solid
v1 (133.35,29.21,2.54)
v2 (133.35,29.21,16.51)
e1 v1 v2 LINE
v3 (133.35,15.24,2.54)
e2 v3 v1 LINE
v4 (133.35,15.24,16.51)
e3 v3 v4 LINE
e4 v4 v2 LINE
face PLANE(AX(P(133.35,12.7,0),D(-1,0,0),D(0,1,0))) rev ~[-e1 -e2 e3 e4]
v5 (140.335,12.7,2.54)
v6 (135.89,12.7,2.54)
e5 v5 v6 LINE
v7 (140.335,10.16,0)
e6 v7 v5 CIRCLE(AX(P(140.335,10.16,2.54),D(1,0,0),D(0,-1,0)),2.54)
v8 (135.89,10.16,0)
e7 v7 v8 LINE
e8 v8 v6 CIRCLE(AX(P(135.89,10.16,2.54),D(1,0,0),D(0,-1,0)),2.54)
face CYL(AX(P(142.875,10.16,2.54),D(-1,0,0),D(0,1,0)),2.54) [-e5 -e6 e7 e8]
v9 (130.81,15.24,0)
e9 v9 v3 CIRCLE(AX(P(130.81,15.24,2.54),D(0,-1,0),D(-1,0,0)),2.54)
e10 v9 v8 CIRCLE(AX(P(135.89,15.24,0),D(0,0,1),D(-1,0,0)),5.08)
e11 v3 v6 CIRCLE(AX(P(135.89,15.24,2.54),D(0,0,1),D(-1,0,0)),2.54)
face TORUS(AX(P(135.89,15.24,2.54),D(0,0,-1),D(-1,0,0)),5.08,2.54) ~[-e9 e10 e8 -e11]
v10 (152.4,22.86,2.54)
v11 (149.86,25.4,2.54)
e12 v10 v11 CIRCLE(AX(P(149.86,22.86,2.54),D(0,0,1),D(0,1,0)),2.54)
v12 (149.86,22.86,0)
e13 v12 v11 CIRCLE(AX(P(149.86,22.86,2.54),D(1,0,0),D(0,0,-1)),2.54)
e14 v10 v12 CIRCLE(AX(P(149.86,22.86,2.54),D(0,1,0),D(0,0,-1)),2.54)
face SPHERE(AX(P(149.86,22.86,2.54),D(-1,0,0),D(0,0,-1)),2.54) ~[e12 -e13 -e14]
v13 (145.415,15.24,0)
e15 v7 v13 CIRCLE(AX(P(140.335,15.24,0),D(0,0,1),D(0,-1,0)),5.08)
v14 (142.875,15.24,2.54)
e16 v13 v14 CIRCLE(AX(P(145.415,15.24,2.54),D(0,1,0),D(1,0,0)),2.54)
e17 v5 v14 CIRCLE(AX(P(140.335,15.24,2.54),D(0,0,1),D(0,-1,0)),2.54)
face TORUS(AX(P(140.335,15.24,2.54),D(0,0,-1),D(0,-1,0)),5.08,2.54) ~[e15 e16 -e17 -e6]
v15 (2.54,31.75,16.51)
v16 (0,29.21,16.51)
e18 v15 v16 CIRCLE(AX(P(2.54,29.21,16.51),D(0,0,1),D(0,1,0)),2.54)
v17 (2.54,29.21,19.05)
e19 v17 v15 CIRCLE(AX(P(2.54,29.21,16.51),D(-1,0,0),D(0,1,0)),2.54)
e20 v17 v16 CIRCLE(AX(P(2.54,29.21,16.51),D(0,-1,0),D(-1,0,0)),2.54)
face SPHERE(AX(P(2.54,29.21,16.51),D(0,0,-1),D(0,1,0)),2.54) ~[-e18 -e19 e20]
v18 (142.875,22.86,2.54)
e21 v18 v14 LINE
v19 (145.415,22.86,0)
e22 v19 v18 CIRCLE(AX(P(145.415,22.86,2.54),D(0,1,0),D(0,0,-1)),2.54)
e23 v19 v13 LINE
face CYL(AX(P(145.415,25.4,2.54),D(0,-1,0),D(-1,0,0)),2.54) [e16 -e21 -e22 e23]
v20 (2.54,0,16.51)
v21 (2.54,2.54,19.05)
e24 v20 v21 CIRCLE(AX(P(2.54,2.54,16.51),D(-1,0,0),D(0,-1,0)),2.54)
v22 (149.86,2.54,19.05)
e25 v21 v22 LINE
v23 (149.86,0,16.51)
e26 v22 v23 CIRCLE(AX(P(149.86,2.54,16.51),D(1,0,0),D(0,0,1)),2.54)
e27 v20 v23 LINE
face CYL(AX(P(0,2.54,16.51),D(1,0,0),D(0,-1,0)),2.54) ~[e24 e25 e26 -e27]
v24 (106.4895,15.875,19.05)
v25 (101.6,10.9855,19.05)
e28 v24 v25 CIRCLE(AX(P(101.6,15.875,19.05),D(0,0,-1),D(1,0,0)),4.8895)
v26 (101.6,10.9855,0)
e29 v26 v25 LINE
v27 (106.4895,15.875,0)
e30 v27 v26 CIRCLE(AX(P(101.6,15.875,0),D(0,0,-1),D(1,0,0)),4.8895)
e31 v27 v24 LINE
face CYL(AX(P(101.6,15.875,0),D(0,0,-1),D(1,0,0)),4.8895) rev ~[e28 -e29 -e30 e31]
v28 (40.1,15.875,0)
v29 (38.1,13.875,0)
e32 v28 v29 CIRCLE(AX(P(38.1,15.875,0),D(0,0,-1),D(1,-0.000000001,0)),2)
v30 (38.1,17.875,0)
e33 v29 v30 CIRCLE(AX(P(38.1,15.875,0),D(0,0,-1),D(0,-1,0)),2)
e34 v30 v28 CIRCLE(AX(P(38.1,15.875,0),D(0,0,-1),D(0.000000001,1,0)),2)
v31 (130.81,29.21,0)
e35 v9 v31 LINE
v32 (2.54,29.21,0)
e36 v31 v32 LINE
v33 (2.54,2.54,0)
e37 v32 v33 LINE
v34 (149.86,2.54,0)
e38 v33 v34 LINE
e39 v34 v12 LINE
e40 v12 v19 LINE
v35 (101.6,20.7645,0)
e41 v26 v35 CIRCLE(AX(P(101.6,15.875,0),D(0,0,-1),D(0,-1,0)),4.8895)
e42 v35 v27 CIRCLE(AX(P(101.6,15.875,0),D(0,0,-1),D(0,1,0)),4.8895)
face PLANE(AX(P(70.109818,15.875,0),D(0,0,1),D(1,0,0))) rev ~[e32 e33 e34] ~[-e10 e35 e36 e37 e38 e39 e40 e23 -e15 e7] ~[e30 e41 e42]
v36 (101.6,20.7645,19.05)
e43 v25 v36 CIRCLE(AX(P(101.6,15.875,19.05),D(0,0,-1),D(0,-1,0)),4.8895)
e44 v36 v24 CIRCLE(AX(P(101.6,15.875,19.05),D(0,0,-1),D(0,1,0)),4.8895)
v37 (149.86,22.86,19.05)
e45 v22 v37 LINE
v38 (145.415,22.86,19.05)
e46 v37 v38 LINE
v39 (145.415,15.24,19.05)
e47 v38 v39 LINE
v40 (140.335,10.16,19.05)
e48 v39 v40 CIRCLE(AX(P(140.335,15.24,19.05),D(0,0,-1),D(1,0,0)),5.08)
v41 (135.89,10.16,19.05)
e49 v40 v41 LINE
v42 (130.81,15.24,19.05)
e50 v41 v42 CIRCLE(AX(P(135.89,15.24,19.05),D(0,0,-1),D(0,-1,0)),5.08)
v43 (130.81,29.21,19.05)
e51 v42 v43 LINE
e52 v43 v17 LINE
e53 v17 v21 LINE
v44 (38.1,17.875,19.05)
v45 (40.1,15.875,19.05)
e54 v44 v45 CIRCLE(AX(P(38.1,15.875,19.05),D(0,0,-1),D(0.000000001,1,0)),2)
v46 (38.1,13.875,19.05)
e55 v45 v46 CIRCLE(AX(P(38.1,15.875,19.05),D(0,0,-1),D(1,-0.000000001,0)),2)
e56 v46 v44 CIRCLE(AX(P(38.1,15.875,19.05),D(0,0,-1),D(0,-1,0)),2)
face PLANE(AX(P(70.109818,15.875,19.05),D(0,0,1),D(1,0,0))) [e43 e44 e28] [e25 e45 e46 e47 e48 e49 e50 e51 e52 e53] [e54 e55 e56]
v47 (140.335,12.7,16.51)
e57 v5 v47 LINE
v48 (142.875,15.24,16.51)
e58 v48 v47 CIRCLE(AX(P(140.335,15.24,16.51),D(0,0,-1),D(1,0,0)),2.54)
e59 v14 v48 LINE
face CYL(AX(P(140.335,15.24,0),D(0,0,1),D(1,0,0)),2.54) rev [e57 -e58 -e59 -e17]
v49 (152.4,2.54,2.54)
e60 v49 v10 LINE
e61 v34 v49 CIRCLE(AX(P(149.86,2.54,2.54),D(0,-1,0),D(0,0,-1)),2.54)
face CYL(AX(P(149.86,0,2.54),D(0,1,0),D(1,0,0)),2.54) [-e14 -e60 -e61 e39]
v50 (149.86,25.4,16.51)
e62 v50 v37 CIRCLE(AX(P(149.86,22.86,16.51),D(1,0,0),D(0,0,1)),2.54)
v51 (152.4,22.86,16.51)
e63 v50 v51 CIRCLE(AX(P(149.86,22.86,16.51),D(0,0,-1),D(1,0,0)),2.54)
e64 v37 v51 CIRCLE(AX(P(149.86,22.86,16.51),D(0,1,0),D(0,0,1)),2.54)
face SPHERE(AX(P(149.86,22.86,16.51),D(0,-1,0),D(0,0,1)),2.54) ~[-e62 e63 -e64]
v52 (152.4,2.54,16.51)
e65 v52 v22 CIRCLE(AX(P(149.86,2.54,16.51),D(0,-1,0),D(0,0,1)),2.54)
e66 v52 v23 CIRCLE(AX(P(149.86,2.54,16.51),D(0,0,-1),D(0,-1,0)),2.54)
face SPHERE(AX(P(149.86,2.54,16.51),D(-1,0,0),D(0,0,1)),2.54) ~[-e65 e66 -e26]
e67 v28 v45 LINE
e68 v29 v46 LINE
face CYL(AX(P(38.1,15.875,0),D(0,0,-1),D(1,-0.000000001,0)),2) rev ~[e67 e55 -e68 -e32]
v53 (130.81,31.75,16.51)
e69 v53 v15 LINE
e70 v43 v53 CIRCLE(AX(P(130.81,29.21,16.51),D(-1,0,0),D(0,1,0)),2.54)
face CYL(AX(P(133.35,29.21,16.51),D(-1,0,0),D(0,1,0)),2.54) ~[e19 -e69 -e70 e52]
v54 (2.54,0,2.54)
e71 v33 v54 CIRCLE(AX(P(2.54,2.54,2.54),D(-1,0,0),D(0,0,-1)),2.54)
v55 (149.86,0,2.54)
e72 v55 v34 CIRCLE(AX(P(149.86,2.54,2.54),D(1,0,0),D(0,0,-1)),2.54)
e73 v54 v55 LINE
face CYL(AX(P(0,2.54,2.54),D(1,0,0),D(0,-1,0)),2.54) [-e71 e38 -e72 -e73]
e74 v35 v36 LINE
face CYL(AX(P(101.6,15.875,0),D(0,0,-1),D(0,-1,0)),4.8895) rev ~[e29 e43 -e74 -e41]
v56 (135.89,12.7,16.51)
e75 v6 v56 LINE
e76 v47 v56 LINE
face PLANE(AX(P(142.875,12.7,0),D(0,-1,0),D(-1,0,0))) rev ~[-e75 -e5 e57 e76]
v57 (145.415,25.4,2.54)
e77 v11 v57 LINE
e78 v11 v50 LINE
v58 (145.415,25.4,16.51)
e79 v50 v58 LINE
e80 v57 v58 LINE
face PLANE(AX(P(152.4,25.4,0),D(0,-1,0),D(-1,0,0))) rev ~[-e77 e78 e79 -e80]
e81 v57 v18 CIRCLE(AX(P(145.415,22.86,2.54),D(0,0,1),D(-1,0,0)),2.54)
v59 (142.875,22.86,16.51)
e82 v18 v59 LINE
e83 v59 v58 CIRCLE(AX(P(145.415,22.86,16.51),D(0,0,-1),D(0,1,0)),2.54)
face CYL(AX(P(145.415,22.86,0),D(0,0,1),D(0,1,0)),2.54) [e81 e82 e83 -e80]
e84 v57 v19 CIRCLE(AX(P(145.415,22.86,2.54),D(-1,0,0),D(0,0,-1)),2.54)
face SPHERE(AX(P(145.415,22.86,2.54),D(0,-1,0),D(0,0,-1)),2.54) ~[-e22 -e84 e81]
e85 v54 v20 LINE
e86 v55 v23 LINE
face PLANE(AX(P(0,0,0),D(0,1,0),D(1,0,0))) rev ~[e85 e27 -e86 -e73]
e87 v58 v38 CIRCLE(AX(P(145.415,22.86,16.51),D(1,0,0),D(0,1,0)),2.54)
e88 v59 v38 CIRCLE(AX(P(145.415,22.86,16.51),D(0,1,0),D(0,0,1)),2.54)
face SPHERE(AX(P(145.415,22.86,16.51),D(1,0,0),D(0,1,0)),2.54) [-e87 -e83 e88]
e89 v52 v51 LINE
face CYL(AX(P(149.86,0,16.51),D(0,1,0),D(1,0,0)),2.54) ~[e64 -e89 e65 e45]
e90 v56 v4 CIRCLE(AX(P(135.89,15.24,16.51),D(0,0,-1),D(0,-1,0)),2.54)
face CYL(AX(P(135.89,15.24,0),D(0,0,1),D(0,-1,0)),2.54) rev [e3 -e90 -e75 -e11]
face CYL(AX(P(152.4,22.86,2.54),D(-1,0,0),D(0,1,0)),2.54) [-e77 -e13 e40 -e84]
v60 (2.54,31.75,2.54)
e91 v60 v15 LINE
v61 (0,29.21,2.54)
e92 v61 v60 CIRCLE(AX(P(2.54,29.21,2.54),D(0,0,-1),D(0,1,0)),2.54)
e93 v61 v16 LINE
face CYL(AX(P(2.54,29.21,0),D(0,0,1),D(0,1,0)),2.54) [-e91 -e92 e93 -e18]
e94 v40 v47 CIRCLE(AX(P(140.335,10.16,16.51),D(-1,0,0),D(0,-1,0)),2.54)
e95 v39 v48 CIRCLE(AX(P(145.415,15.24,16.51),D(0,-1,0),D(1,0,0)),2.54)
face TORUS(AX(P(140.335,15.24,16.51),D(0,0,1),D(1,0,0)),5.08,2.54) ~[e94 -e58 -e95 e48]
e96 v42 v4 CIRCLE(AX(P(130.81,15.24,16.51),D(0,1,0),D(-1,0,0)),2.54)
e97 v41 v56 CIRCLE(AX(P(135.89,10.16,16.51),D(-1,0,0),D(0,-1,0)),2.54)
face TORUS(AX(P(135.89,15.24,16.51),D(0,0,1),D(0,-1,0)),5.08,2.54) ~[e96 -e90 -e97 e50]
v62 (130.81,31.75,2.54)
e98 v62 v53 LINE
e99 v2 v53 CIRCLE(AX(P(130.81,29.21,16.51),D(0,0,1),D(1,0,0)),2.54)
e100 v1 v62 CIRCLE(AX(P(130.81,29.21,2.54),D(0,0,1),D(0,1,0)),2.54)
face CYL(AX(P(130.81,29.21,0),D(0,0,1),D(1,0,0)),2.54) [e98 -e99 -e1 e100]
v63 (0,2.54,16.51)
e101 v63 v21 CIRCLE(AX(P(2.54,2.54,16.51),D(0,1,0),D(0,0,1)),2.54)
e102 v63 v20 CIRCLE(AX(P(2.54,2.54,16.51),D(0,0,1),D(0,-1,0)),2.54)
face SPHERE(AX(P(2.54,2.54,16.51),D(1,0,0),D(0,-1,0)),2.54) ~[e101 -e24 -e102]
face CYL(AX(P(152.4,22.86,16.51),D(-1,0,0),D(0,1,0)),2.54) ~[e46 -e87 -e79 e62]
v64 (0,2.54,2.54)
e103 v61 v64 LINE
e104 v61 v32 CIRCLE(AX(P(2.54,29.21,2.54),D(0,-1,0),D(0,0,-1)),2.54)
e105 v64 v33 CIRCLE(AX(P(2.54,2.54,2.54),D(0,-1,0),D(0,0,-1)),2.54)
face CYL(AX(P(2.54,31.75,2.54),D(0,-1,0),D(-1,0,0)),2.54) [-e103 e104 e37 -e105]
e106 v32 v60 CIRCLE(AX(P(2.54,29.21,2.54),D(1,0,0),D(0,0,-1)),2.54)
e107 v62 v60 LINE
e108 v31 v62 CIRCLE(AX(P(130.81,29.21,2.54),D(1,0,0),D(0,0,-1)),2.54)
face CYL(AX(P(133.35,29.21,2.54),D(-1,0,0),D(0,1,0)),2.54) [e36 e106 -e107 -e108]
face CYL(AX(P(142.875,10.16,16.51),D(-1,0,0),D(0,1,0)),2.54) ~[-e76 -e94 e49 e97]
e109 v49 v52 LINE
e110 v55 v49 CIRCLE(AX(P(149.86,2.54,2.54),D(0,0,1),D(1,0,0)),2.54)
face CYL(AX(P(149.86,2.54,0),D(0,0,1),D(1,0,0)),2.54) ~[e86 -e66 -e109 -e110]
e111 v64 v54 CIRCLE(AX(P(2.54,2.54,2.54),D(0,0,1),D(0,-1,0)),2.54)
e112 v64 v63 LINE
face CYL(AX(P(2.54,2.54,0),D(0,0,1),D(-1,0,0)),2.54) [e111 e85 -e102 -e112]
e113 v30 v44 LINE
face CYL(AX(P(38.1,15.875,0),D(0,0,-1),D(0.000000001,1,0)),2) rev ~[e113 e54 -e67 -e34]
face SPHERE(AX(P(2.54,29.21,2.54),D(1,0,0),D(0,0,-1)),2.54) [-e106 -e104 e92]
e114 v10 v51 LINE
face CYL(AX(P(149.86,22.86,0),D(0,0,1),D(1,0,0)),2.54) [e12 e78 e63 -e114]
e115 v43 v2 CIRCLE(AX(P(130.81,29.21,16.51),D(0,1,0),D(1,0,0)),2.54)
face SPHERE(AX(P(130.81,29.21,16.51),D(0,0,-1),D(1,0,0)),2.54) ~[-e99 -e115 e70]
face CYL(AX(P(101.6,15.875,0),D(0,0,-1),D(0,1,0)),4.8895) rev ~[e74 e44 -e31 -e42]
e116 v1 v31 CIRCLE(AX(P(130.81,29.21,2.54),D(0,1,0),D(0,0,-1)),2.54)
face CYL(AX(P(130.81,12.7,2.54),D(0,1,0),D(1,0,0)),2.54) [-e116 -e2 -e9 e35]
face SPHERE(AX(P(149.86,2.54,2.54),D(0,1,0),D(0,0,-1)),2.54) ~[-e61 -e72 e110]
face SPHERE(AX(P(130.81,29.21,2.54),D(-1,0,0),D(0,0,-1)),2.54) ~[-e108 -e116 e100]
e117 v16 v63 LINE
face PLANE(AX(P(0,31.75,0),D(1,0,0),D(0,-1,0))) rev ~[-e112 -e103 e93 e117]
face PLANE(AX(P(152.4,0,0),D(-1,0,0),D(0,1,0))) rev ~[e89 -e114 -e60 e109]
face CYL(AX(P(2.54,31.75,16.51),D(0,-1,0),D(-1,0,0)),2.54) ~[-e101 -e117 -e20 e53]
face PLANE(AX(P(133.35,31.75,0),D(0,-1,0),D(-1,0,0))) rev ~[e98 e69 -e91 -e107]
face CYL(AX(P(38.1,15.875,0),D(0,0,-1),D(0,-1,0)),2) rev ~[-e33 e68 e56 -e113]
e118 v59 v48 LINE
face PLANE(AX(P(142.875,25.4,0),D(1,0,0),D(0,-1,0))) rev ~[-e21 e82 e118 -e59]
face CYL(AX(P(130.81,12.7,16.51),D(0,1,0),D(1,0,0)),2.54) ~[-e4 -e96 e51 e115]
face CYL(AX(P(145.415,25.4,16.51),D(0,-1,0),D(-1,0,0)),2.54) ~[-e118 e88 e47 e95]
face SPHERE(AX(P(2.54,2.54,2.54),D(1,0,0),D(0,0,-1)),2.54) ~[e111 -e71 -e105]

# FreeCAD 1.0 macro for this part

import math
import FreeCAD as App
import Part
import Sketcher

V = App.Vector
Q = App.Units.Quantity


def edges_at(feature, points):
    """Names of the edges that pass closest to the given points."""
    edges = feature.Shape.Edges
    near = lambda p: min(range(len(edges)), key=lambda i: edges[i].distToShape(Part.Vertex(*p))[0])
    return sorted({f"Edge{near(p) + 1}" for p in points})

doc = App.newDocument("Part")
body = doc.addObject("PartDesign::Body", "Body")

sketch1 = body.newObject("Sketcher::SketchObject", "Sketch")
sketch1.AttachmentSupport = (doc.getObject("XY_Plane"), [""])
sketch1.MapMode = "FlatFace"
sketch1.addGeometry(Part.LineSegment(V(152.4, 0, 0), V(152.4, 25.4, 0)), False)
sketch1.addGeometry(Part.LineSegment(V(152.4, 25.4, 0), V(142.875, 25.4, 0)), False)
sketch1.addGeometry(Part.LineSegment(V(142.875, 25.4, 0), V(142.875, 12.7, 0)), False)
sketch1.addGeometry(Part.LineSegment(V(142.875, 12.7, 0), V(133.35, 12.7, 0)), False)
sketch1.addGeometry(Part.LineSegment(V(133.35, 12.7, 0), V(133.35, 31.75, 0)), False)
sketch1.addGeometry(Part.LineSegment(V(133.35, 31.75, 0), V(0, 31.75, 0)), False)
sketch1.addGeometry(Part.LineSegment(V(0, 31.75, 0), V(0, 0, 0)), False)
sketch1.addGeometry(Part.LineSegment(V(0, 0, 0), V(152.4, 0, 0)), False)
sketch1.addGeometry(Part.ArcOfCircle(Part.Circle(V(101.6, 15.875, 0), V(0, 0, 1), 4.8895), math.radians(90), math.radians(270)), False)
sketch1.addGeometry(Part.ArcOfCircle(Part.Circle(V(101.6, 15.875, 0), V(0, 0, 1), 4.8895), math.radians(0), math.radians(90)), False)
sketch1.addGeometry(Part.ArcOfCircle(Part.Circle(V(101.6, 15.875, 0), V(0, 0, 1), 4.8895), math.radians(-90), math.radians(0)), False)
sketch1.addGeometry(Part.ArcOfCircle(Part.Circle(V(38.1, 15.875, 0), V(0, 0, 1), 2), math.radians(0), math.radians(90)), False)
sketch1.addGeometry(Part.ArcOfCircle(Part.Circle(V(38.1, 15.875, 0), V(0, 0, 1), 2), math.radians(-90), math.radians(0)), False)
sketch1.addGeometry(Part.ArcOfCircle(Part.Circle(V(38.1, 15.875, 0), V(0, 0, 1), 2), math.radians(90), math.radians(270)), False)
sketch1.addConstraint(Sketcher.Constraint("Coincident", 0, 2, 1, 1))
sketch1.addConstraint(Sketcher.Constraint("Coincident", 1, 2, 2, 1))
sketch1.addConstraint(Sketcher.Constraint("Coincident", 2, 2, 3, 1))
sketch1.addConstraint(Sketcher.Constraint("Coincident", 3, 2, 4, 1))
sketch1.addConstraint(Sketcher.Constraint("Coincident", 4, 2, 5, 1))
sketch1.addConstraint(Sketcher.Constraint("Coincident", 5, 2, 6, 1))
sketch1.addConstraint(Sketcher.Constraint("Coincident", 6, 2, 7, 1))
sketch1.addConstraint(Sketcher.Constraint("Coincident", 7, 2, 0, 1))
sketch1.addConstraint(Sketcher.Constraint("Tangent", 8, 1, 9, 2))
sketch1.addConstraint(Sketcher.Constraint("Tangent", 9, 1, 10, 2))
sketch1.addConstraint(Sketcher.Constraint("Tangent", 10, 1, 8, 2))
sketch1.addConstraint(Sketcher.Constraint("Tangent", 11, 1, 12, 2))
sketch1.addConstraint(Sketcher.Constraint("Tangent", 12, 1, 13, 2))
sketch1.addConstraint(Sketcher.Constraint("Tangent", 13, 1, 11, 2))
sketch1.addConstraint(Sketcher.Constraint("Vertical", 0))
sketch1.addConstraint(Sketcher.Constraint("Horizontal", 1))
sketch1.addConstraint(Sketcher.Constraint("Vertical", 2))
sketch1.addConstraint(Sketcher.Constraint("Horizontal", 3))
sketch1.addConstraint(Sketcher.Constraint("Vertical", 4))
sketch1.addConstraint(Sketcher.Constraint("Horizontal", 5))
sketch1.addConstraint(Sketcher.Constraint("Vertical", 6))
sketch1.addConstraint(Sketcher.Constraint("Horizontal", 7))
sketch1.addConstraint(Sketcher.Constraint("Coincident", 6, 2, -1, 1))
sketch1.addConstraint(Sketcher.Constraint("Horizontal", 10, 3, 11, 3))
sketch1.addConstraint(Sketcher.Constraint("Horizontal", 13, 3, 9, 1))
sketch1.addConstraint(Sketcher.Constraint("Horizontal", 9, 1, 11, 1))
sketch1.addConstraint(Sketcher.Constraint("Vertical", 10, 3, 8, 1))
sketch1.addConstraint(Sketcher.Constraint("Vertical", 8, 1, 10, 1))
sketch1.addConstraint(Sketcher.Constraint("Vertical", 13, 3, 12, 1))
sketch1.addConstraint(Sketcher.Constraint("Vertical", 12, 1, 13, 1))
sketch1.addConstraint(Sketcher.Constraint("Equal", 1, 3))
sketch1.addConstraint(Sketcher.Constraint("DistanceX", 7, 1, 7, 2, Q("6 in")))
sketch1.addConstraint(Sketcher.Constraint("DistanceY", 0, 1, 0, 2, Q("1 in")))
sketch1.addConstraint(Sketcher.Constraint("DistanceY", 2, 2, 2, 1, Q("0.5 in")))
sketch1.addConstraint(Sketcher.Constraint("DistanceX", -1, 1, 8, 3, Q("4 in")))
sketch1.addConstraint(Sketcher.Constraint("DistanceX", 5, 2, 5, 1, Q("5.25 in")))
sketch1.addConstraint(Sketcher.Constraint("DistanceY", 4, 1, 4, 2, Q("0.75 in")))
sketch1.addConstraint(Sketcher.Constraint("DistanceX", -1, 1, 11, 3, Q("1.5 in")))
sketch1.addConstraint(Sketcher.Constraint("Radius", 8, Q("0.1925 in")))
sketch1.addConstraint(Sketcher.Constraint("Radius", 11, Q("2 mm")))
sketch1.addConstraint(Sketcher.Constraint("DistanceY", -1, 1, 8, 3, Q("0.625 in")))
pad1 = body.newObject("PartDesign::Pad", "Pad")
pad1.Profile = sketch1
pad1.Length = Q("0.75 in")
doc.recompute()

fillet = body.newObject("PartDesign::Fillet", "Fillet")
fillet.Base = (pad1, edges_at(pad1, [
    (76.2, 0, 19.05),
    (66.675, 31.75, 0),
    (133.35, 22.225, 0),
    (138.113, 12.7, 0),
    (142.875, 19.05, 0),
    (147.637, 25.4, 0),
    (152.4, 12.7, 0),
    (152.4, 12.7, 19.05),
    (76.2, 0, 0),
    (0, 15.875, 0),
    (147.637, 25.4, 19.05),
    (0, 31.75, 9.525),
    (133.35, 31.75, 9.525),
    (133.35, 12.7, 9.525),
    (142.875, 12.7, 9.525),
    (142.875, 25.4, 9.525),
    (152.4, 25.4, 9.525),
    (152.4, 0, 9.525),
    (0, 0, 9.525),
    (142.875, 19.05, 19.05),
    (138.113, 12.7, 19.05),
    (133.35, 22.225, 19.05),
    (66.675, 31.75, 19.05),
    (0, 15.875, 19.05),
]))
fillet.Radius = Q("0.1 in")

doc.recompute()
